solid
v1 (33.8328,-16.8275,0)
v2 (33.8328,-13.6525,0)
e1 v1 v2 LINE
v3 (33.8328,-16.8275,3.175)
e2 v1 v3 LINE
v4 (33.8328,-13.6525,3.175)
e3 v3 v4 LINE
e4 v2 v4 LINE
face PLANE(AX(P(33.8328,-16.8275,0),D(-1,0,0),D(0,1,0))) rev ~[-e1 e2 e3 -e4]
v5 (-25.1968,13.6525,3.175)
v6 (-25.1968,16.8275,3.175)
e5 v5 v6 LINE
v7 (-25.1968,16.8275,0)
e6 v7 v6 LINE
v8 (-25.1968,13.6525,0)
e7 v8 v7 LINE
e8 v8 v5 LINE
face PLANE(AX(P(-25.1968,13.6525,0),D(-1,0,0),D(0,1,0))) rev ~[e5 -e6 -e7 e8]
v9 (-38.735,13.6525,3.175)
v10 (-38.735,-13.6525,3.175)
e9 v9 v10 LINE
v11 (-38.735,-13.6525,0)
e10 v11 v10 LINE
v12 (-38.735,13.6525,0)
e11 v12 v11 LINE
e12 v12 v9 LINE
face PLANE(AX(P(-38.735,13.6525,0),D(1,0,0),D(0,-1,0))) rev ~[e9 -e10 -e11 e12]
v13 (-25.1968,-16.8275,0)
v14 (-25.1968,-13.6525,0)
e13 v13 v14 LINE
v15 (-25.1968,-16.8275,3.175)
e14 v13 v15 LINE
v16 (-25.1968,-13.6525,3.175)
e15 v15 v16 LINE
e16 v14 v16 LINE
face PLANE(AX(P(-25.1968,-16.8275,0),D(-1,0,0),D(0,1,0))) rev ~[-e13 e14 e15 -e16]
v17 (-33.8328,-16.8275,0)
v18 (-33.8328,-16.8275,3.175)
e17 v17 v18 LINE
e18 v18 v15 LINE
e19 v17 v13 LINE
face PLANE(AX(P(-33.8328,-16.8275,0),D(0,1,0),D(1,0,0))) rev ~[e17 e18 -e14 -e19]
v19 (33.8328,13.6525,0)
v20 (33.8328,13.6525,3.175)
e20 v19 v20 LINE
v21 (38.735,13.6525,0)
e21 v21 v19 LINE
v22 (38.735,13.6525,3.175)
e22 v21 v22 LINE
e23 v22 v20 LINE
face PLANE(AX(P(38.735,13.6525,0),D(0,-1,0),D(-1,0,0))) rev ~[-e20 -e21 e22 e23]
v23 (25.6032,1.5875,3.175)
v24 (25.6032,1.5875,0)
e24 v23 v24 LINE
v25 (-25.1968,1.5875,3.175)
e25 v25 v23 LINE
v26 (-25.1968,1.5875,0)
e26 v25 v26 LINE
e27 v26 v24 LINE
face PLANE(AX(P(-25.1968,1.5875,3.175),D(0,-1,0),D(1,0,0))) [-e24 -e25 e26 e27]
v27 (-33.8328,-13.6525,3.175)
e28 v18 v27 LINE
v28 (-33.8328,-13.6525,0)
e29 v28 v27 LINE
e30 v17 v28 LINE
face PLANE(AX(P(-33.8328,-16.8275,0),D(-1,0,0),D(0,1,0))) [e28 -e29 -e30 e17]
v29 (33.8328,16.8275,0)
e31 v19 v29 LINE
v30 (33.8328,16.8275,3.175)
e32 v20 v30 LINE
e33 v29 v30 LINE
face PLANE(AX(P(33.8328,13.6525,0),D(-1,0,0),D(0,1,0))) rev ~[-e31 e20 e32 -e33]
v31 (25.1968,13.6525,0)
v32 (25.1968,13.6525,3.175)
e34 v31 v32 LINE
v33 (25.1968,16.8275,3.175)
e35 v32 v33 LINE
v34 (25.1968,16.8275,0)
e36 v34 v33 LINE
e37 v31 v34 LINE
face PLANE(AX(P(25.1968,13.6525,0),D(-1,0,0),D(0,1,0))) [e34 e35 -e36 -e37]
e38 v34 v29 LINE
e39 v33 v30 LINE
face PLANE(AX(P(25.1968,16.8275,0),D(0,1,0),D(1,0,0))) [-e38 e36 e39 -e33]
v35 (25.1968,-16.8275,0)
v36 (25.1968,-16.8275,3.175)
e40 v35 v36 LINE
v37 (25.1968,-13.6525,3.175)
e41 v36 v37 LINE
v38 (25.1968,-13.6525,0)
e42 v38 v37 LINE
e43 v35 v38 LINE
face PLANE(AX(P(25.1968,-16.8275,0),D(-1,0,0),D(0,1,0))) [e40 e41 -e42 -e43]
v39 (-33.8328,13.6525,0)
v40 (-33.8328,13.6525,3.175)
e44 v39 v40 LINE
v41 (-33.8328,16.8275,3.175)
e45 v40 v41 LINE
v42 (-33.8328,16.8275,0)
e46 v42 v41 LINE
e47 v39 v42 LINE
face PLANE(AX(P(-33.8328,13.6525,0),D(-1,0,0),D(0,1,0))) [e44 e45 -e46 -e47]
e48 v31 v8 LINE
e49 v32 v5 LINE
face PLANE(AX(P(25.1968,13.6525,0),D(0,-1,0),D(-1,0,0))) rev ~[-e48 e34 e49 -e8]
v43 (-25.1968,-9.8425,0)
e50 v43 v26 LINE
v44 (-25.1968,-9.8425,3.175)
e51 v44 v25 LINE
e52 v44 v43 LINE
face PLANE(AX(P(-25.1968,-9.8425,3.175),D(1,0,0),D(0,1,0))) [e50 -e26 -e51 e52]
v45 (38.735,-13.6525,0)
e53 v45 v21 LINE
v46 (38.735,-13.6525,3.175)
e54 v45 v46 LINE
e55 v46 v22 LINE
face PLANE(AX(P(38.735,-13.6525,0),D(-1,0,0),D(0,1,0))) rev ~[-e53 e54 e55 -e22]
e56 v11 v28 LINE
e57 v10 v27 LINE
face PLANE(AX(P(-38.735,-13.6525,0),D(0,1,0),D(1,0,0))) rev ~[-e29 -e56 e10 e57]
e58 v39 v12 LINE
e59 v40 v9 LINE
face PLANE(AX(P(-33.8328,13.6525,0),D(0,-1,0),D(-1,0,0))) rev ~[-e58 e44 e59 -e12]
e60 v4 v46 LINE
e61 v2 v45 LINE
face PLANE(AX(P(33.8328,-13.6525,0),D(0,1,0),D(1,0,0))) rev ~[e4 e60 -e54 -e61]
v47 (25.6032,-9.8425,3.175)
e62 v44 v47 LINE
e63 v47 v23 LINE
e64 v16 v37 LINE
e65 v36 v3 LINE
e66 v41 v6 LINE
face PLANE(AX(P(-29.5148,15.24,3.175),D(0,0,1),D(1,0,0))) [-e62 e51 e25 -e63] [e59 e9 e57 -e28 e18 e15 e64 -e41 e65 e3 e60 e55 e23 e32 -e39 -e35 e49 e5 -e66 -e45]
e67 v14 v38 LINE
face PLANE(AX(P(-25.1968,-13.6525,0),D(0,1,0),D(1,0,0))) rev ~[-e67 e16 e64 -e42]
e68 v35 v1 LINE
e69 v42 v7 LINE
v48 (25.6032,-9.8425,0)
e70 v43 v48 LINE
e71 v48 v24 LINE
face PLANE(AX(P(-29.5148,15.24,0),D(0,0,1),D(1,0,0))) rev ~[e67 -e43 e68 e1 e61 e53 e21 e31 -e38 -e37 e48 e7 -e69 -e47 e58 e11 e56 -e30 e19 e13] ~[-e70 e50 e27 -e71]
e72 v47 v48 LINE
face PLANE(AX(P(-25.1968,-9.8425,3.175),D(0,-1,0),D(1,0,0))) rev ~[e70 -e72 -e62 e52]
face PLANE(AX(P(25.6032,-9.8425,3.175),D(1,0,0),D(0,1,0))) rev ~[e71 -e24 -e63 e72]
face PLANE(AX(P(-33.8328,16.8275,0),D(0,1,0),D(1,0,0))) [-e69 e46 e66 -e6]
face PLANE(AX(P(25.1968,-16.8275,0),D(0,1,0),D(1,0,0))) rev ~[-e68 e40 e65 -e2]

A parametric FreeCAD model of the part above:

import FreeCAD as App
import Part
import Sketcher
from FreeCAD import Vector
Q = App.Units.Quantity


def add_polygon(sketch, points):
    """Adds a closed chain of lines whose ends are joined by coincident constraints."""
    first, n = sketch.GeometryCount, len(points)
    for a, b in zip(points, points[1:] + points[:1]):
        sketch.addGeometry(Part.LineSegment(App.Vector(*a, 0), App.Vector(*b, 0)), False)
    for i in range(n):
        sketch.addConstraint(Sketcher.Constraint("Coincident", first + i, 2, first + (i + 1) % n, 1))

doc = App.newDocument("Part")
params = doc.addObject("Spreadsheet::Sheet", "Params")
for row, (alias, value) in enumerate([
    ("sketch1_width", "0.34 in"),
    ("sketch1_width2", "0.193 in"),
    ("sketch1_width3", "1.984 in"),
    ("sketch1_height", "0.125 in"),
    ("pad1_length", "0.125 in"),
    ("sketch2_width", "2 in"),
    ("sketch2_height", "0.45 in"),
    ("pocket1_length", "1 in"),
], start=1):
    params.set(f"A{row}", alias)
    params.set(f"B{row}", "=" + value)
    params.setAlias(f"B{row}", alias)

body = doc.addObject("PartDesign::Body", "Body")

# Sketch on XY plane
sketch1 = doc.addObject("Sketcher::SketchObject", "Sketch")
body.addObject(sketch1)
sketch1.AttachmentSupport = (doc.XY_Plane, [""])
sketch1.MapMode = "FlatFace"
add_polygon(sketch1, [(-33.8, 16.8), (-33.8, 13.7), (-38.7, 13.7), (-38.7, -13.7), (-33.8, -13.7), (-33.8, -16.8), (-25.2, -16.8), (-25.2, -13.7), (25.2, -13.7), (25.2, -16.8), (33.8, -16.8), (33.8, -13.7), (38.7, -13.7), (38.7, 13.7), (33.8, 13.7), (33.8, 16.8), (25.2, 16.8), (25.2, 13.7), (-25.2, 13.7), (-25.2, 16.8)])  # lines 0-19
sketch1.addConstraint(Sketcher.Constraint("Vertical", 0))
sketch1.addConstraint(Sketcher.Constraint("Horizontal", 1))
sketch1.addConstraint(Sketcher.Constraint("Vertical", 2))
sketch1.addConstraint(Sketcher.Constraint("Horizontal", 3))
sketch1.addConstraint(Sketcher.Constraint("Vertical", 4))
sketch1.addConstraint(Sketcher.Constraint("Horizontal", 5))
sketch1.addConstraint(Sketcher.Constraint("Vertical", 6))
sketch1.addConstraint(Sketcher.Constraint("Horizontal", 7))
sketch1.addConstraint(Sketcher.Constraint("Vertical", 8))
sketch1.addConstraint(Sketcher.Constraint("Horizontal", 9))
sketch1.addConstraint(Sketcher.Constraint("Vertical", 10))
sketch1.addConstraint(Sketcher.Constraint("Horizontal", 11))
sketch1.addConstraint(Sketcher.Constraint("Vertical", 12))
sketch1.addConstraint(Sketcher.Constraint("Horizontal", 13))
sketch1.addConstraint(Sketcher.Constraint("Vertical", 14))
sketch1.addConstraint(Sketcher.Constraint("Horizontal", 15))
sketch1.addConstraint(Sketcher.Constraint("Vertical", 16))
sketch1.addConstraint(Sketcher.Constraint("Horizontal", 17))
sketch1.addConstraint(Sketcher.Constraint("Vertical", 18))
sketch1.addConstraint(Sketcher.Constraint("Horizontal", 19))
sketch1.addConstraint(Sketcher.Constraint("Symmetric", 0, 2, 10, 2, -1, 1))
sketch1.addConstraint(Sketcher.Constraint("Symmetric", 2, 2, 12, 2, -1, 1))
sketch1.addConstraint(Sketcher.Constraint("Symmetric", 4, 2, 14, 2, -1, 1))
sketch1.addConstraint(Sketcher.Constraint("Symmetric", 6, 2, 16, 2, -1, 1))
sketch1.addConstraint(Sketcher.Constraint("Symmetric", 8, 2, 18, 2, -1, 1))
sketch1.addConstraint(Sketcher.Constraint("Symmetric", 5, 2, 8, 2, -2))
sketch1.addConstraint(Sketcher.Constraint("Symmetric", 3, 2, 10, 2, -2))
sketch1.addConstraint(Sketcher.Constraint("Horizontal", 3, 2, 6, 2))
sketch1.addConstraint(Sketcher.Constraint("DistanceX", 5, 1, 5, 2, Q("0.34 in")))
sketch1.addConstraint(Sketcher.Constraint("DistanceY", 4, 2, 0, 2, Q("1.2 in")))
sketch1.addConstraint(Sketcher.Constraint("DistanceX", 1, 2, 1, 1, Q("0.193 in")))
sketch1.addConstraint(Sketcher.Constraint("DistanceX", 7, 1, 7, 2, Q("1.984 in")))
sketch1.addConstraint(Sketcher.Constraint("DistanceY", 0, 2, 0, 1, Q("0.125 in")))
sketch1.setExpression("Constraints[48]", "Params.sketch1_width")
sketch1.setExpression("Constraints[50]", "Params.sketch1_width2")
sketch1.setExpression("Constraints[51]", "Params.sketch1_width3")
sketch1.setExpression("Constraints[52]", "Params.sketch1_height")
pad1 = doc.addObject("PartDesign::Pad", "Pad")
body.addObject(pad1)
pad1.Profile = sketch1
pad1.setExpression("Length", "Params.pad1_length")

# Sketch on XY plane
sketch2 = doc.addObject("Sketcher::SketchObject", "Sketch001")
body.addObject(sketch2)
sketch2.AttachmentSupport = (doc.XY_Plane, [""])
sketch2.MapMode = "FlatFace"
sketch2.AttachmentOffset = App.Placement(Vector(0, 0, 0.125 * 25.4), App.Rotation())
add_polygon(sketch2, [(-25, 2), (-25, -10), (26, -10), (26, 2)])  # lines 0-3
sketch2.addConstraint(Sketcher.Constraint("Vertical", 0))
sketch2.addConstraint(Sketcher.Constraint("Horizontal", 1))
sketch2.addConstraint(Sketcher.Constraint("Vertical", 2))
sketch2.addConstraint(Sketcher.Constraint("Horizontal", 3))
sketch2.addConstraint(Sketcher.Constraint("DistanceX", 1, 1, 1, 2, Q("2 in")))
sketch2.addConstraint(Sketcher.Constraint("DistanceY", 0, 2, 0, 1, Q("0.45 in")))
sketch2.addConstraint(Sketcher.Constraint("DistanceX", 0, 2, -1, 1, Q("0.992 in")))
sketch2.addConstraint(Sketcher.Constraint("DistanceY", -1, 1, 2, 2, Q("0.0625 in")))
sketch2.setExpression("Constraints[8]", "Params.sketch2_width")
sketch2.setExpression("Constraints[9]", "Params.sketch2_height")
pocket1 = doc.addObject("PartDesign::Pocket", "Pocket")
body.addObject(pocket1)
pocket1.Profile = sketch2
pocket1.setExpression("Length", "Params.pocket1_length")

doc.recompute()
